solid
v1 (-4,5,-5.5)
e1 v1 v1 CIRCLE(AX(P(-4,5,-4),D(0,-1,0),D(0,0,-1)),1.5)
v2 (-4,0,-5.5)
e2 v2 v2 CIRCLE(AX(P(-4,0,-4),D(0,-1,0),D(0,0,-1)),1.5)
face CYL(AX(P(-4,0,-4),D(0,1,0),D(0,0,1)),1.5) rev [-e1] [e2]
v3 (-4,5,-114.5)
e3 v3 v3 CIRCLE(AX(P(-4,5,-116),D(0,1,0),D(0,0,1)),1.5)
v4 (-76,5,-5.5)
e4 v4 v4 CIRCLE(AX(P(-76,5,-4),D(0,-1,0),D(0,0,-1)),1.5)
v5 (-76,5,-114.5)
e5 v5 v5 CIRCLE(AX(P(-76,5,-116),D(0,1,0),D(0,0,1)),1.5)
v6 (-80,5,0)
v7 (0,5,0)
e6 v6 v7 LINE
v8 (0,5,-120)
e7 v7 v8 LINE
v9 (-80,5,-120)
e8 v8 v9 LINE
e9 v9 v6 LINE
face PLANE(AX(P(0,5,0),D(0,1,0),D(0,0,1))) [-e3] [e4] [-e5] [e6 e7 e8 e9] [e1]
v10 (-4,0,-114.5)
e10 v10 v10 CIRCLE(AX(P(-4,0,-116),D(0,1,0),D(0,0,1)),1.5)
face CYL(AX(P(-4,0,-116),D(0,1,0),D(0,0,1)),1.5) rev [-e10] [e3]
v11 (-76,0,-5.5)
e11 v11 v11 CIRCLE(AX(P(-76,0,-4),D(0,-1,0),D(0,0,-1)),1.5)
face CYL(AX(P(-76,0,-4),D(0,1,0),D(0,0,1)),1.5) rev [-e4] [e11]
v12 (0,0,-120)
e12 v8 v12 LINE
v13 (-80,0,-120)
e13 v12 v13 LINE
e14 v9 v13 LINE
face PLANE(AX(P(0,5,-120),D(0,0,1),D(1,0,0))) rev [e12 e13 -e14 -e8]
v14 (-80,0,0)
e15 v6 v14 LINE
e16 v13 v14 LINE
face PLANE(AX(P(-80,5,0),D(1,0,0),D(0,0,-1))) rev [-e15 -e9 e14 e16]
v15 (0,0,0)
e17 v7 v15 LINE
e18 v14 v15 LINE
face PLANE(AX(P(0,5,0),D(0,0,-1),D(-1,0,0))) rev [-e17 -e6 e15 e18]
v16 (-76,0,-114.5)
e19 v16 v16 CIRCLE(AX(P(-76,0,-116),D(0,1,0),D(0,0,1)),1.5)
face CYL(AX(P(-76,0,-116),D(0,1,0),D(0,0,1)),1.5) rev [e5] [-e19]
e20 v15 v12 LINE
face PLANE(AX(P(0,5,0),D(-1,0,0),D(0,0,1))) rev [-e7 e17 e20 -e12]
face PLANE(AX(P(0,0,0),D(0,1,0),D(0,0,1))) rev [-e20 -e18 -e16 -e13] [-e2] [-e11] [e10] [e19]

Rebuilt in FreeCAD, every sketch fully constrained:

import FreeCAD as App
import Part
import Sketcher
from FreeCAD import Vector
Q = App.Units.Quantity


def add_polygon(sketch, points):
    """Adds a closed chain of lines whose ends are joined by coincident constraints."""
    first, n = sketch.GeometryCount, len(points)
    for a, b in zip(points, points[1:] + points[:1]):
        sketch.addGeometry(Part.LineSegment(App.Vector(*a, 0), App.Vector(*b, 0)), False)
    for i in range(n):
        sketch.addConstraint(Sketcher.Constraint("Coincident", first + i, 2, first + (i + 1) % n, 1))

doc = App.newDocument("Part")
body = doc.addObject("PartDesign::Body", "Body")

# Sketch on XZ plane
sketch1 = body.newObject("Sketcher::SketchObject", "Sketch")
sketch1.AttachmentSupport = (doc.getObject("XZ_Plane"), [""])
sketch1.MapMode = "FlatFace"
add_polygon(sketch1, [(-80, -120), (-80, 0), (0, 0), (0, -120)])  # lines 0-3
sketch1.addConstraint([
    Sketcher.Constraint("Vertical", 0),
    Sketcher.Constraint("Horizontal", 1),
    Sketcher.Constraint("Vertical", 2),
    Sketcher.Constraint("Horizontal", 3),
    Sketcher.Constraint("Coincident", 1, 2, -1, 1),
    Sketcher.Constraint("DistanceX", 1, 1, 1, 2, Q("80 mm")),
    Sketcher.Constraint("DistanceY", 0, 1, 0, 2, Q("120 mm")),
])
pad1 = body.newObject("PartDesign::Pad", "Pad")
pad1.Profile = sketch1
pad1.Length = 5
pad1.Reversed = True

# Sketch on XZ plane
sketch2 = body.newObject("Sketcher::SketchObject", "Sketch001")
sketch2.AttachmentSupport = (doc.getObject("XZ_Plane"), [""])
sketch2.MapMode = "FlatFace"
sketch2.AttachmentOffset = App.Placement(Vector(0, 0, -5), App.Rotation())
sketch2.addGeometry(Part.Circle(Vector(-76, -116, 0), Vector(0, 0, 1), 1.5), False)
sketch2.addConstraint([
    Sketcher.Constraint("Diameter", 0, Q("3 mm")),
    Sketcher.Constraint("DistanceX", 0, 3, -1, 1, Q("76 mm")),
    Sketcher.Constraint("DistanceY", 0, 3, -1, 1, Q("116 mm")),
])
pocket1 = body.newObject("PartDesign::Pocket", "Pocket")
pocket1.Profile = sketch2
pocket1.Type = "ThroughAll"
pocket1.Reversed = True

# Sketch on XZ plane
sketch3 = body.newObject("Sketcher::SketchObject", "Sketch002")
sketch3.AttachmentSupport = (doc.getObject("XZ_Plane"), [""])
sketch3.MapMode = "FlatFace"
sketch3.AttachmentOffset = App.Placement(Vector(0, 0, -5), App.Rotation())
sketch3.addGeometry(Part.Circle(Vector(-4, -116, 0), Vector(0, 0, 1), 1.5), False)
sketch3.addConstraint([
    Sketcher.Constraint("Diameter", 0, Q("3 mm")),
    Sketcher.Constraint("DistanceX", 0, 3, -1, 1, Q("4 mm")),
    Sketcher.Constraint("DistanceY", 0, 3, -1, 1, Q("116 mm")),
])
pocket2 = body.newObject("PartDesign::Pocket", "Pocket001")
pocket2.Profile = sketch3
pocket2.Type = "ThroughAll"
pocket2.Reversed = True
doc.recompute()

datumplane = body.newObject("PartDesign::Plane", "DatumPlane")
datumplane.AttachmentSupport = (doc.getObject("XY_Plane"), [""])
datumplane.MapMode = "FlatFace"
datumplane.AttachmentOffset = App.Placement(Vector(0, 0, -60), App.Rotation())
mirrored = body.newObject("PartDesign::Mirrored", "Mirrored")
mirrored.Originals = [pocket1, pocket2]
mirrored.MirrorPlane = (datumplane, [""])
body.Tip = mirrored

doc.recompute()
